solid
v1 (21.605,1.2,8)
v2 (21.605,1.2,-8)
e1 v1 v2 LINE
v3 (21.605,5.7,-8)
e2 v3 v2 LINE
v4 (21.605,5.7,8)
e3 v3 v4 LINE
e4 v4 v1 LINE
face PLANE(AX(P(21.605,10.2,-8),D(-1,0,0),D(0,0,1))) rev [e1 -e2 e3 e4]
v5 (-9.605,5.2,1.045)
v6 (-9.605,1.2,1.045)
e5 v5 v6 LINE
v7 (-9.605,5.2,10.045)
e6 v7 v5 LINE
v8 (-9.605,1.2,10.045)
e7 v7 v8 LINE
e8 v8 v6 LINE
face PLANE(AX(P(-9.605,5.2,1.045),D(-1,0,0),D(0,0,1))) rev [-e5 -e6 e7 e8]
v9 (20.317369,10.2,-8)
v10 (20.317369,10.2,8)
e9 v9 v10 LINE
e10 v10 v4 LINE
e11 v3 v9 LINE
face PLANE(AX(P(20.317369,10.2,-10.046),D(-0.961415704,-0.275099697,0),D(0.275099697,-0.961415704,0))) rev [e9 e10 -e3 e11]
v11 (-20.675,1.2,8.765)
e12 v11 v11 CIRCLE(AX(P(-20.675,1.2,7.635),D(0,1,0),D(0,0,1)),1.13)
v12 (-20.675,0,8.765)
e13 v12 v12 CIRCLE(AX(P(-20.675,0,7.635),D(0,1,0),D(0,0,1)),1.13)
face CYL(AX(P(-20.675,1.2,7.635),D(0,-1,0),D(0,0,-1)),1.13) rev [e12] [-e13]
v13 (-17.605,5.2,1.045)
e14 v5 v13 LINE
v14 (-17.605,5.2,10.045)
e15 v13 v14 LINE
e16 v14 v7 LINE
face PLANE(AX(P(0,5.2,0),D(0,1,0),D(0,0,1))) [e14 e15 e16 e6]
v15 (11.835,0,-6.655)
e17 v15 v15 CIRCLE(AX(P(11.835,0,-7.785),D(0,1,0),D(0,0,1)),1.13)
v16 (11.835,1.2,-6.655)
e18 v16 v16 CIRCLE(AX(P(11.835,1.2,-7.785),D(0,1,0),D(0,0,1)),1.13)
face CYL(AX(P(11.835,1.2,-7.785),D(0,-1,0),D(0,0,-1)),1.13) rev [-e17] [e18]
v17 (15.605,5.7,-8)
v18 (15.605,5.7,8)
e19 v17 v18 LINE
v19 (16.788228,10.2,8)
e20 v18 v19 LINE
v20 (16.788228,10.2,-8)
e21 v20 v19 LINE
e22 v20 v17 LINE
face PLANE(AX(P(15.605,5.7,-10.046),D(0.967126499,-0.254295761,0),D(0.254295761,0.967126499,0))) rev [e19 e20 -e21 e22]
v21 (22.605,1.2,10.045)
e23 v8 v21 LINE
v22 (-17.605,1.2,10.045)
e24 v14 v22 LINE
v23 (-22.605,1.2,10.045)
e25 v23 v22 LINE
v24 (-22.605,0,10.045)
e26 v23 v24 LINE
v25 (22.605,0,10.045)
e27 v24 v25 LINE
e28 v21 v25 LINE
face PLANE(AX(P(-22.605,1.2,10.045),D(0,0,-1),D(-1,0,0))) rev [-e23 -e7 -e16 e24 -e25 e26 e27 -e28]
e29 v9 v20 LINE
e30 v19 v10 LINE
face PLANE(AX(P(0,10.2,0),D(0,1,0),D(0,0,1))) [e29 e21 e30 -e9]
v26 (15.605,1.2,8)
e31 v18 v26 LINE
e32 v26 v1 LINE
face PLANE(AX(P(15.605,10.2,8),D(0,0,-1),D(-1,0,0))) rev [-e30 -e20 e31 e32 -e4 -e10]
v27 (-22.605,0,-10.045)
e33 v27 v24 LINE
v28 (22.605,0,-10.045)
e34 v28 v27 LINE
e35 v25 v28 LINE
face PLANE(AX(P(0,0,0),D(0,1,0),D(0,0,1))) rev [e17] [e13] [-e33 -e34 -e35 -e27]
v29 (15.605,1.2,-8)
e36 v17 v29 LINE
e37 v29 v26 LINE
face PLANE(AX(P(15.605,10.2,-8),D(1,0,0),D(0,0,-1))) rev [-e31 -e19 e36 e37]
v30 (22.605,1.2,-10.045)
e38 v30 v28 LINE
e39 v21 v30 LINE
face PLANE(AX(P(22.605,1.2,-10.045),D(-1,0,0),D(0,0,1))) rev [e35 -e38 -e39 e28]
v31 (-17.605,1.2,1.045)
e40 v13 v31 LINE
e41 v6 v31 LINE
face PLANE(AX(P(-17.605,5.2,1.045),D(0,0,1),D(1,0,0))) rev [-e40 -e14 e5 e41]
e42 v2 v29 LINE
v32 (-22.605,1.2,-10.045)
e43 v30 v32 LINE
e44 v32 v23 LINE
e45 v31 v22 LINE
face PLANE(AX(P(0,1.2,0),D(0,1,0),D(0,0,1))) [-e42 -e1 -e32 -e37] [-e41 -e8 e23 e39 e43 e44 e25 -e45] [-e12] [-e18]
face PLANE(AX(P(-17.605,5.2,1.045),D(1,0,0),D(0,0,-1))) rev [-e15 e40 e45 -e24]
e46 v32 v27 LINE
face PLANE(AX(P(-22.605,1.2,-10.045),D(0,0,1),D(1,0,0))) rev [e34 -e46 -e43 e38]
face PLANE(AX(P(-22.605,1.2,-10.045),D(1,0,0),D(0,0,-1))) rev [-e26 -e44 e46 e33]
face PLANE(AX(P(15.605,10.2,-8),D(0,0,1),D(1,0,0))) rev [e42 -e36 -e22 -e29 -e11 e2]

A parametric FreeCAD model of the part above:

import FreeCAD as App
import Part
import Sketcher
from FreeCAD import Vector
Q = App.Units.Quantity

doc = App.newDocument("Part")
params = doc.addObject("Spreadsheet::Sheet", "Params")
for row, (alias, value) in enumerate([
    ("sketch1_diameter", "2.26 mm"),
    ("sketch1_width", "45.21 mm"),
    ("sketch1_height", "20.09 mm"),
    ("pad1_length", "1.2 mm"),
    ("sketch2_width", "6 mm"),
    ("sketch2_height", "16 mm"),
    ("pad2_length", "9 mm"),
    ("sketch3_height", "4.5 mm"),
    ("sketch4_height", "4.5 mm"),
    ("sketch5_width", "8 mm"),
    ("sketch5_height", "9 mm"),
    ("pad3_length", "4 mm"),
], start=1):
    params.set(f"A{row}", alias)
    params.set(f"B{row}", "=" + value)
    params.setAlias(f"B{row}", alias)

body = doc.addObject("PartDesign::Body", "Body")

# Sketch on XZ plane
sketch1 = body.newObject("Sketcher::SketchObject", "Sketch")
sketch1.AttachmentSupport = (doc.getObject("XZ_Plane"), [""])
sketch1.MapMode = "FlatFace"
sketch1.addGeometry([
    Part.LineSegment(Vector(-22.605, -10.045, 0), Vector(-22.605, 10.045, 0)),  # 0
    Part.LineSegment(Vector(-22.605, 10.045, 0), Vector(22.605, 10.045, 0)),  # 1
    Part.LineSegment(Vector(22.605, 10.045, 0), Vector(22.605, -10.045, 0)),  # 2
    Part.LineSegment(Vector(22.605, -10.045, 0), Vector(-22.605, -10.045, 0)),  # 3
    Part.Circle(Vector(-20.675, 7.635, 0), Vector(0, 0, 1), 1.13),  # 4
    Part.Circle(Vector(11.835, -7.785, 0), Vector(0, 0, 1), 1.13),  # 5
], False)
sketch1.addConstraint([
    Sketcher.Constraint("Coincident", 0, 2, 1, 1),
    Sketcher.Constraint("Coincident", 1, 2, 2, 1),
    Sketcher.Constraint("Coincident", 2, 2, 3, 1),
    Sketcher.Constraint("Coincident", 3, 2, 0, 1),
    Sketcher.Constraint("Vertical", 0),
    Sketcher.Constraint("Horizontal", 1),
    Sketcher.Constraint("Vertical", 2),
    Sketcher.Constraint("Horizontal", 3),
    Sketcher.Constraint("Equal", 4, 5),
    Sketcher.Constraint("Symmetric", 0, 2, 2, 2, -1, 1),
    Sketcher.Constraint("Diameter", 4, Q("2.26 mm")),
    Sketcher.Constraint("DistanceX", 1, 1, 1, 2, Q("45.21 mm")),
    Sketcher.Constraint("DistanceY", 0, 1, 0, 2, Q("20.09 mm")),
    Sketcher.Constraint("DistanceX", 4, 3, 5, 3, Q("32.51 mm")),
    Sketcher.Constraint("DistanceY", 5, 3, 4, 3, Q("15.42 mm")),
    Sketcher.Constraint("DistanceX", 0, 2, 4, 3, Q("1.93 mm")),
    Sketcher.Constraint("DistanceY", 4, 3, 0, 2, Q("2.41 mm")),
])
sketch1.setExpression("Constraints[10]", "Params.sketch1_diameter")
sketch1.setExpression("Constraints[11]", "Params.sketch1_width")
sketch1.setExpression("Constraints[12]", "Params.sketch1_height")
pad1 = body.newObject("PartDesign::Pad", "Pad")
pad1.Profile = sketch1
pad1.setExpression("Length", "Params.pad1_length")
pad1.Reversed = True

# Sketch on XZ plane
sketch2 = body.newObject("Sketcher::SketchObject", "Sketch001")
sketch2.AttachmentSupport = (doc.getObject("XZ_Plane"), [""])
sketch2.MapMode = "FlatFace"
sketch2.AttachmentOffset = App.Placement(Vector(0, 0, -1.2), App.Rotation())
sketch2.addGeometry([
    Part.LineSegment(Vector(15.605, -8, 0), Vector(15.605, 8, 0)),
    Part.LineSegment(Vector(15.605, 8, 0), Vector(21.605, 8, 0)),
    Part.LineSegment(Vector(21.605, 8, 0), Vector(21.605, -8, 0)),
    Part.LineSegment(Vector(21.605, -8, 0), Vector(15.605, -8, 0)),
], False)
sketch2.addConstraint([
    Sketcher.Constraint("Coincident", 0, 2, 1, 1),
    Sketcher.Constraint("Coincident", 1, 2, 2, 1),
    Sketcher.Constraint("Coincident", 2, 2, 3, 1),
    Sketcher.Constraint("Coincident", 3, 2, 0, 1),
    Sketcher.Constraint("Vertical", 0),
    Sketcher.Constraint("Horizontal", 1),
    Sketcher.Constraint("Vertical", 2),
    Sketcher.Constraint("Horizontal", 3),
    Sketcher.Constraint("DistanceX", 1, 1, 1, 2, Q("6 mm")),
    Sketcher.Constraint("DistanceY", 0, 1, 0, 2, Q("16 mm")),
    Sketcher.Constraint("DistanceY", -1, 1, 0, 2, Q("8 mm")),
    Sketcher.Constraint("DistanceX", -1, 1, 0, 2, Q("15.605 mm")),
])
sketch2.setExpression("Constraints[8]", "Params.sketch2_width")
sketch2.setExpression("Constraints[9]", "Params.sketch2_height")
pad2 = body.newObject("PartDesign::Pad", "Pad001")
pad2.Profile = sketch2
pad2.setExpression("Length", "Params.pad2_length")
pad2.Reversed = True

# Sketch on XY plane
sketch3 = body.newObject("Sketcher::SketchObject", "Sketch002")
sketch3.AttachmentSupport = (doc.getObject("XY_Plane"), [""])
sketch3.MapMode = "FlatFace"
sketch3.AttachmentOffset = App.Placement(Vector(0, 0, 8), App.Rotation())
sketch3.addGeometry([
    Part.LineSegment(Vector(15.605, 5.7, 0), Vector(16.788228, 10.2, 0)),
    Part.LineSegment(Vector(16.788228, 10.2, 0), Vector(15.605, 10.2, 0)),
    Part.LineSegment(Vector(15.605, 10.2, 0), Vector(15.605, 5.7, 0)),
], False)
sketch3.addConstraint([
    Sketcher.Constraint("Coincident", 0, 2, 1, 1),
    Sketcher.Constraint("Coincident", 1, 2, 2, 1),
    Sketcher.Constraint("Coincident", 2, 2, 0, 1),
    Sketcher.Constraint("Horizontal", 1),
    Sketcher.Constraint("Vertical", 2),
    Sketcher.Constraint("DistanceY", 2, 2, 2, 1, Q("4.5 mm")),
    Sketcher.Constraint("DistanceY", -1, 1, 0, 2, Q("10.2 mm")),
    Sketcher.Constraint("DistanceX", -1, 1, 1, 2, Q("15.605 mm")),
    Sketcher.Constraint("Distance", 0, Q("4.652959 mm")),
])
sketch3.setExpression("Constraints[5]", "Params.sketch3_height")
pocket1 = body.newObject("PartDesign::Pocket", "Pocket")
pocket1.Profile = sketch3
pocket1.Type = "UpToFirst"

# Sketch on XY plane
sketch4 = body.newObject("Sketcher::SketchObject", "Sketch003")
sketch4.AttachmentSupport = (doc.getObject("XY_Plane"), [""])
sketch4.MapMode = "FlatFace"
sketch4.AttachmentOffset = App.Placement(Vector(0, 0, 8), App.Rotation())
sketch4.addGeometry([
    Part.LineSegment(Vector(20.317369, 10.2, 0), Vector(21.605, 5.7, 0)),
    Part.LineSegment(Vector(21.605, 5.7, 0), Vector(21.605, 10.2, 0)),
    Part.LineSegment(Vector(21.605, 10.2, 0), Vector(20.317369, 10.2, 0)),
], False)
sketch4.addConstraint([
    Sketcher.Constraint("Coincident", 0, 2, 1, 1),
    Sketcher.Constraint("Coincident", 1, 2, 2, 1),
    Sketcher.Constraint("Coincident", 2, 2, 0, 1),
    Sketcher.Constraint("Vertical", 1),
    Sketcher.Constraint("Horizontal", 2),
    Sketcher.Constraint("DistanceY", 1, 1, 1, 2, Q("4.5 mm")),
    Sketcher.Constraint("DistanceY", -1, 1, 0, 2, Q("5.7 mm")),
    Sketcher.Constraint("DistanceX", -1, 1, 0, 2, Q("21.605 mm")),
    Sketcher.Constraint("DistanceX", 2, 2, 2, 1, Q("1.287631 mm")),
])
sketch4.setExpression("Constraints[5]", "Params.sketch4_height")
pocket2 = body.newObject("PartDesign::Pocket", "Pocket001")
pocket2.Profile = sketch4
pocket2.Type = "UpToFirst"

# Sketch on XZ plane
sketch5 = body.newObject("Sketcher::SketchObject", "Sketch004")
sketch5.AttachmentSupport = (doc.getObject("XZ_Plane"), [""])
sketch5.MapMode = "FlatFace"
sketch5.AttachmentOffset = App.Placement(Vector(0, 0, -1.2), App.Rotation())
sketch5.addGeometry([
    Part.LineSegment(Vector(-17.605, 1.045, 0), Vector(-17.605, 10.045, 0)),
    Part.LineSegment(Vector(-17.605, 10.045, 0), Vector(-9.605, 10.045, 0)),
    Part.LineSegment(Vector(-9.605, 10.045, 0), Vector(-9.605, 1.045, 0)),
    Part.LineSegment(Vector(-9.605, 1.045, 0), Vector(-17.605, 1.045, 0)),
], False)
sketch5.addConstraint([
    Sketcher.Constraint("Coincident", 0, 2, 1, 1),
    Sketcher.Constraint("Coincident", 1, 2, 2, 1),
    Sketcher.Constraint("Coincident", 2, 2, 3, 1),
    Sketcher.Constraint("Coincident", 3, 2, 0, 1),
    Sketcher.Constraint("Vertical", 0),
    Sketcher.Constraint("Horizontal", 1),
    Sketcher.Constraint("Vertical", 2),
    Sketcher.Constraint("Horizontal", 3),
    Sketcher.Constraint("DistanceX", 1, 1, 1, 2, Q("8 mm")),
    Sketcher.Constraint("DistanceY", 0, 1, 0, 2, Q("9 mm")),
    Sketcher.Constraint("DistanceX", 0, 2, -1, 1, Q("17.605 mm")),
    Sketcher.Constraint("DistanceY", -1, 1, 0, 2, Q("10.045 mm")),
])
sketch5.setExpression("Constraints[8]", "Params.sketch5_width")
sketch5.setExpression("Constraints[9]", "Params.sketch5_height")
pad3 = body.newObject("PartDesign::Pad", "Pad002")
pad3.Profile = sketch5
pad3.setExpression("Length", "Params.pad3_length")
pad3.Reversed = True

doc.recompute()
